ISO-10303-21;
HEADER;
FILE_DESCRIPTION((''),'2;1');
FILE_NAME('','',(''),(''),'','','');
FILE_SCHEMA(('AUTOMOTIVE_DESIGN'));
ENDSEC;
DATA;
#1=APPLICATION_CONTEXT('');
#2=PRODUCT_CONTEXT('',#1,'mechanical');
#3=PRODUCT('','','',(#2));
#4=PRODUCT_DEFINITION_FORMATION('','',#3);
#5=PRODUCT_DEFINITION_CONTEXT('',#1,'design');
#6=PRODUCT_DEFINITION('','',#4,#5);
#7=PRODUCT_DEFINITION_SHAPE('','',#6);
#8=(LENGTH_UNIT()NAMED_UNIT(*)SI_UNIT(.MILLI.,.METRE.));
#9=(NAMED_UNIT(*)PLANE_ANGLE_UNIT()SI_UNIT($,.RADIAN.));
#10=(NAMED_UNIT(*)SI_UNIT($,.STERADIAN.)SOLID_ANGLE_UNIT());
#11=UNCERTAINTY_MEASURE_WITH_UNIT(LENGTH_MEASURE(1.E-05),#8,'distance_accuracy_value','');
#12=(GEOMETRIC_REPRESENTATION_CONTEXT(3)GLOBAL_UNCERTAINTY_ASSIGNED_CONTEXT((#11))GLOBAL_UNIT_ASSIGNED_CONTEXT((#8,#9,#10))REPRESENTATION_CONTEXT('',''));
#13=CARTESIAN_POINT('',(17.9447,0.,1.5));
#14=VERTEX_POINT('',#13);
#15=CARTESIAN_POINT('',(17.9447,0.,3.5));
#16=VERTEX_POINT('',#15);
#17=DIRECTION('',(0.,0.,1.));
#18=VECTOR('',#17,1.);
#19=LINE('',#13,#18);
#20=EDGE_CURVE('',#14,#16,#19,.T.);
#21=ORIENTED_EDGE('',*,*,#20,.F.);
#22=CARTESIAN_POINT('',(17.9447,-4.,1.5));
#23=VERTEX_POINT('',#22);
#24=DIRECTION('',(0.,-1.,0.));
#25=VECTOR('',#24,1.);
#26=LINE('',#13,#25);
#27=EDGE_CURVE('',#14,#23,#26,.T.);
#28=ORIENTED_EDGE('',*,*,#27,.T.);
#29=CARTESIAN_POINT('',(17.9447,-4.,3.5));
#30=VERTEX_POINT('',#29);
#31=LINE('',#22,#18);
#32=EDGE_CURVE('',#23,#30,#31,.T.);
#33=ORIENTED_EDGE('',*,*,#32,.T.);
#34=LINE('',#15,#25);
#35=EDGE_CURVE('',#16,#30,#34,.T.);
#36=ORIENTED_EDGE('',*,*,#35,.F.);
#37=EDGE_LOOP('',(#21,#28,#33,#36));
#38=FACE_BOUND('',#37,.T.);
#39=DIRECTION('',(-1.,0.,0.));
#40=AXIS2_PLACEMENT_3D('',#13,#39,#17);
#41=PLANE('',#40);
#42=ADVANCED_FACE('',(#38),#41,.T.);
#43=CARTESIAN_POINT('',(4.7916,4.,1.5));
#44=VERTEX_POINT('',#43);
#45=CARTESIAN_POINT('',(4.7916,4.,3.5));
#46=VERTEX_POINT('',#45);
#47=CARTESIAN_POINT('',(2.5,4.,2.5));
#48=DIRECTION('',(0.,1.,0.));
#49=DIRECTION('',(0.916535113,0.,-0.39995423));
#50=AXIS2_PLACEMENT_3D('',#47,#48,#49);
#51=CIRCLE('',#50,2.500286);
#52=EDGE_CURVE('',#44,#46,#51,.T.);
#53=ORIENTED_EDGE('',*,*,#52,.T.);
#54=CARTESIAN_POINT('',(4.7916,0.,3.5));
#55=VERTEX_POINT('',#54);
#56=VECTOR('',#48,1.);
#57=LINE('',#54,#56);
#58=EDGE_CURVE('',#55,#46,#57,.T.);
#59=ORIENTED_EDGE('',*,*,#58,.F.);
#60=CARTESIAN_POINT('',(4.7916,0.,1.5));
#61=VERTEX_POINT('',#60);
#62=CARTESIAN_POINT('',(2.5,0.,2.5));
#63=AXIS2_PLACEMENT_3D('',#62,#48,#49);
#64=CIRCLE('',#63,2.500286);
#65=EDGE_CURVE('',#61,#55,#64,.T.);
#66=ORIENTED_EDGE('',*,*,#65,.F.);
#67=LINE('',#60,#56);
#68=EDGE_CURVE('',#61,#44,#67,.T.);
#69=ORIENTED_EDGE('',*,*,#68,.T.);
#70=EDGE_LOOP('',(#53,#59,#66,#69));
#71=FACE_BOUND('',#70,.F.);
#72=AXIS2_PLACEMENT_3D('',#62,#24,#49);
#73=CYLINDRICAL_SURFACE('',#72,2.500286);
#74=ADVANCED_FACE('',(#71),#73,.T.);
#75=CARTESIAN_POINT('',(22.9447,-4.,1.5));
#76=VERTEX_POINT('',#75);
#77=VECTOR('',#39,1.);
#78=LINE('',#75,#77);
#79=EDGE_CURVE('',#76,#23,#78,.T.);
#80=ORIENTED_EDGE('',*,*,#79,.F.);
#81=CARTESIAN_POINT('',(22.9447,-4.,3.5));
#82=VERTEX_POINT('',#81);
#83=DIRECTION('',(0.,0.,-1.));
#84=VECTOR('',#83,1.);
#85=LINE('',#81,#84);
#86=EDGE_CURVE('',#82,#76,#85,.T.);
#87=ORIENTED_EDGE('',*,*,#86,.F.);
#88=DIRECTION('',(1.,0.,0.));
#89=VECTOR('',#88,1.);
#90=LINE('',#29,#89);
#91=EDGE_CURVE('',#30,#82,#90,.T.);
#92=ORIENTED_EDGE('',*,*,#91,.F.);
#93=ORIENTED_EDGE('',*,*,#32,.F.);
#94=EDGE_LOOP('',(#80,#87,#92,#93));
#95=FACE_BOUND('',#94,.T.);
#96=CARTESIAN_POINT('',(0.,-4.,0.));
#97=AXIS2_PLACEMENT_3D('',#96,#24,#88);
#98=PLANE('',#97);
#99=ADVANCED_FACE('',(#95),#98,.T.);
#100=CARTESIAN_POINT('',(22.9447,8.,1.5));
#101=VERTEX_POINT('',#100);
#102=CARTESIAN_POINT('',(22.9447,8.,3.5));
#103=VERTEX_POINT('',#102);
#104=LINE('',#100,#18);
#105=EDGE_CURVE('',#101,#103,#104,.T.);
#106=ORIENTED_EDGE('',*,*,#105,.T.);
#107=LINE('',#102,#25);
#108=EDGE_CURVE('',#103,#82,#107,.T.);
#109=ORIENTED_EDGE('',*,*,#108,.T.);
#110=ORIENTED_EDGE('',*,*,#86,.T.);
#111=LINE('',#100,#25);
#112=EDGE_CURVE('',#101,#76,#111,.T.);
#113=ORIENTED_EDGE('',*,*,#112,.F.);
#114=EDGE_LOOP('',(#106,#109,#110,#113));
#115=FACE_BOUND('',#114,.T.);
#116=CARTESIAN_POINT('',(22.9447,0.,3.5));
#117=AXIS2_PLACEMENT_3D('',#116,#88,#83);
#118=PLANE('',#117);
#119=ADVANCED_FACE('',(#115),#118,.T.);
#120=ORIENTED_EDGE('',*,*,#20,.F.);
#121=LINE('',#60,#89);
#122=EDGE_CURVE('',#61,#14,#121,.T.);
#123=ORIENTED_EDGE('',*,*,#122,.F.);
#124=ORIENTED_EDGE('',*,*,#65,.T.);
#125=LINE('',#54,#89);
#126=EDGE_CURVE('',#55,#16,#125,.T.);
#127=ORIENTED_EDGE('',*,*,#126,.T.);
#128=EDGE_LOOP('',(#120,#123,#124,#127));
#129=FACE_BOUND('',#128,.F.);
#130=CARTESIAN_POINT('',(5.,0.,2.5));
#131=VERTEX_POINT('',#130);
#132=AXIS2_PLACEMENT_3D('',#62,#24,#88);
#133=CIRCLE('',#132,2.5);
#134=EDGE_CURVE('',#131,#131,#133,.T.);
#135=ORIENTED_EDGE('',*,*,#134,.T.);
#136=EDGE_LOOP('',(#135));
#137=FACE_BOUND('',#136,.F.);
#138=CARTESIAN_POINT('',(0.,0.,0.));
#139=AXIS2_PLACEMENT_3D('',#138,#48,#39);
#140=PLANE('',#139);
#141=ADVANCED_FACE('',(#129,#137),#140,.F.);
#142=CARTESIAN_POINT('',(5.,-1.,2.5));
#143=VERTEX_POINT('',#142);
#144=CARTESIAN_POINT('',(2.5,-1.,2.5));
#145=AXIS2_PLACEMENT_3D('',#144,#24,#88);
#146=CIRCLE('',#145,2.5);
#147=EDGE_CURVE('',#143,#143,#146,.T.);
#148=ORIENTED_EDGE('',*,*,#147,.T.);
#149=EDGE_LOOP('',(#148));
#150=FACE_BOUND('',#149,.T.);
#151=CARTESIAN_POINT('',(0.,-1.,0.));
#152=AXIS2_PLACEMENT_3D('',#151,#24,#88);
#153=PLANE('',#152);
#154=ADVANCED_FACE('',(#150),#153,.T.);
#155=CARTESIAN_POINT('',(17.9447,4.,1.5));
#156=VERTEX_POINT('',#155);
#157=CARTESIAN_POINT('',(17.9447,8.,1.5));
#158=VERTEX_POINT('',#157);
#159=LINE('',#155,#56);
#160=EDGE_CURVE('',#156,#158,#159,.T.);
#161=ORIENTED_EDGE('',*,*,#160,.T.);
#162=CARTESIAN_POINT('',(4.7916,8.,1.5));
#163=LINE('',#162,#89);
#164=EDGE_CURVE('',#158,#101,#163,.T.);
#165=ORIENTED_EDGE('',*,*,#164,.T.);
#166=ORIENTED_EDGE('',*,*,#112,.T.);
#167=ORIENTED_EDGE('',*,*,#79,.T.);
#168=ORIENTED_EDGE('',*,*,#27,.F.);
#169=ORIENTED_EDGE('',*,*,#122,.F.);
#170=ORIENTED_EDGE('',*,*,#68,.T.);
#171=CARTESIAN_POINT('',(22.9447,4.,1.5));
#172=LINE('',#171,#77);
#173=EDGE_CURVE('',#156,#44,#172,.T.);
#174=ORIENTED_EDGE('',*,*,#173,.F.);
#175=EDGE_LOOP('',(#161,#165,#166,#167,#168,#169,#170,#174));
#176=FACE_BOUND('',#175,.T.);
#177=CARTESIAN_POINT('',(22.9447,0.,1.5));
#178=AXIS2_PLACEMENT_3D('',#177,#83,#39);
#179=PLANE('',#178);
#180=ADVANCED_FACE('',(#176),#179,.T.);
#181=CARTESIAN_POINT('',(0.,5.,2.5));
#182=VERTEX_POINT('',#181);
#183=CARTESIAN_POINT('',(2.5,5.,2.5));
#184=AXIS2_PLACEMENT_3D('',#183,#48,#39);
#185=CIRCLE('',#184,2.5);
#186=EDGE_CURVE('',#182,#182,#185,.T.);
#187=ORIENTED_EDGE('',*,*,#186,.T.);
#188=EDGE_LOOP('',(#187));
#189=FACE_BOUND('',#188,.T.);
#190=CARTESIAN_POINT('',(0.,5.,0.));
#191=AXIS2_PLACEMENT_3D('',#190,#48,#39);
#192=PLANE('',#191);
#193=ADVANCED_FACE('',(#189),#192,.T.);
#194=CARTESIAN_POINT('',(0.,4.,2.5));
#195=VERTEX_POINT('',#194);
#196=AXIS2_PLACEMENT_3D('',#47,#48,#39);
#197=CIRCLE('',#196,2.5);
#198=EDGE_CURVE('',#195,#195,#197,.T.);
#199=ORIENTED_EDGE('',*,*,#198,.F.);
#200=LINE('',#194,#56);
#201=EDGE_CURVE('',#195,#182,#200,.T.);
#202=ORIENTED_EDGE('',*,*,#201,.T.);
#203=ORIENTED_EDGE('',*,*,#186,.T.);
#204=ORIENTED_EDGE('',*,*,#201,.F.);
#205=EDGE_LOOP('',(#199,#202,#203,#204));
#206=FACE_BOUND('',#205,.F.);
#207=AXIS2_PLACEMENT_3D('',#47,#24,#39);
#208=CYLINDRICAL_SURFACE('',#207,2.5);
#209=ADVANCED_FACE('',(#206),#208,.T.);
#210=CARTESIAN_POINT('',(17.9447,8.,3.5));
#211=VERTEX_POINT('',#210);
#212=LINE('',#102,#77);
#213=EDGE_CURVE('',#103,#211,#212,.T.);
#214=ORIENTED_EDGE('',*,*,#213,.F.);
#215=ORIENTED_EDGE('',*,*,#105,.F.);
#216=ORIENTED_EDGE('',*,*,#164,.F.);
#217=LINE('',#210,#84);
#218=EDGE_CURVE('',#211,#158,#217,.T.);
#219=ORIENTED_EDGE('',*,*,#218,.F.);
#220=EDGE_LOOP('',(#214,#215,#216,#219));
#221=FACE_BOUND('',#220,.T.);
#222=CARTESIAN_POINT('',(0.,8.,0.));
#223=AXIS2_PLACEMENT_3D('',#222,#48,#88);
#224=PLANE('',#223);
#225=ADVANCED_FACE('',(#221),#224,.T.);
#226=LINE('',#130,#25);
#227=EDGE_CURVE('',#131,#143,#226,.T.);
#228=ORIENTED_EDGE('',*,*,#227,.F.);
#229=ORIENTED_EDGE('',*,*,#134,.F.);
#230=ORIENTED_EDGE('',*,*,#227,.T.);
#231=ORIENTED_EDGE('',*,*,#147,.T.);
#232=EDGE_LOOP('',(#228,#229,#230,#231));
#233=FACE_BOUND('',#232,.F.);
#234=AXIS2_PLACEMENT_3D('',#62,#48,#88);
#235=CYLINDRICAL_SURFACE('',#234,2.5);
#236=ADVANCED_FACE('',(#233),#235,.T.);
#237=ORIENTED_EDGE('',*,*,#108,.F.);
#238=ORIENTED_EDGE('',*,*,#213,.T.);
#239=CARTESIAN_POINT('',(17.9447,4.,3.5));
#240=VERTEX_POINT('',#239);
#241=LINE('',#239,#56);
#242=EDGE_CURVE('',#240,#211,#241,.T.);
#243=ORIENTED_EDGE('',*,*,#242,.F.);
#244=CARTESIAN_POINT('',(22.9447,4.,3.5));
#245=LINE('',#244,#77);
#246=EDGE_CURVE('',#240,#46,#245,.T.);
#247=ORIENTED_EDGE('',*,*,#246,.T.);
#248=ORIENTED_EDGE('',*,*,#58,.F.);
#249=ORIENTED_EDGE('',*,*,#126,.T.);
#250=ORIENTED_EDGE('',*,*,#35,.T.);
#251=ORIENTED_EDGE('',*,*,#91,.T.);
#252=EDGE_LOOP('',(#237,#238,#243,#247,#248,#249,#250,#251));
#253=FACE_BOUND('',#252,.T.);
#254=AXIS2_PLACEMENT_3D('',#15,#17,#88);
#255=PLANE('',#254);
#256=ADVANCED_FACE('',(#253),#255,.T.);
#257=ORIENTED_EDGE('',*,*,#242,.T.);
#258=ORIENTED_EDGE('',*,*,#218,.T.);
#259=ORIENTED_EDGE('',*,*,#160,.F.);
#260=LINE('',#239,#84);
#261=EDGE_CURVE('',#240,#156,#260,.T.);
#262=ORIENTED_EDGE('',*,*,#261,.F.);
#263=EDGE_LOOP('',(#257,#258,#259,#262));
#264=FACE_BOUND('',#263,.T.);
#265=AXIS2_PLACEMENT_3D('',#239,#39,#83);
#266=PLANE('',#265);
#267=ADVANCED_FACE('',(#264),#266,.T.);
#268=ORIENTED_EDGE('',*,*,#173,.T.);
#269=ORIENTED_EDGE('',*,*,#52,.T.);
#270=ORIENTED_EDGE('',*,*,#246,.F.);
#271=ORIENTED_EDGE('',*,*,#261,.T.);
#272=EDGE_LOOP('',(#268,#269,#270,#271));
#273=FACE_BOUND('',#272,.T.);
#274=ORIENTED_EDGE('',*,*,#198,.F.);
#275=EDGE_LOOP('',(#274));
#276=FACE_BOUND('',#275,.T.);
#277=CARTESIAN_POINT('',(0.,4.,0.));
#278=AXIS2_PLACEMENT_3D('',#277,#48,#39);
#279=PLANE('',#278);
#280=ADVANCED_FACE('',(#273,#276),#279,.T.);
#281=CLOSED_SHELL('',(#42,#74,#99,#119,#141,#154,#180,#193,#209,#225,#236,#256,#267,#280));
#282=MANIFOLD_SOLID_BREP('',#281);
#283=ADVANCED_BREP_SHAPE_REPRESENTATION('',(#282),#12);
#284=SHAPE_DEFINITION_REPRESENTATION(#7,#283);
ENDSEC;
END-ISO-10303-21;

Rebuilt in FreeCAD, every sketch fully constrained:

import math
import FreeCAD as App
import Part
import Sketcher

V = App.Vector
Q = App.Units.Quantity

doc = App.newDocument("Part")
body = doc.addObject("PartDesign::Body", "Body")

# Sketch on XZ plane
sketch1 = body.newObject("Sketcher::SketchObject", "Sketch")
sketch1.AttachmentSupport = (doc.getObject("XZ_Plane"), [""])
sketch1.MapMode = "FlatFace"
sketch1.addGeometry(Part.LineSegment(V(8, 5, 0), V(22.9, 5, 0)), False)
sketch1.addGeometry(Part.LineSegment(V(22.9, 5, 0), V(22.9, 0, 0)), False)
sketch1.addGeometry(Part.LineSegment(V(22.9, 0, 0), V(8, 0, 0)), False)
sketch1.addGeometry(Part.LineSegment(V(8, 0, 0), V(8, 1.5, 0)), False)
sketch1.addGeometry(Part.LineSegment(V(8, 1.5, 0), V(4.8, 1.5, 0)), False)
sketch1.addGeometry(Part.ArcOfCircle(Part.Circle(V(2.5, 2.5, 0), V(0, 0, 1), 2.5), math.radians(24), math.radians(336)), False)
sketch1.addGeometry(Part.LineSegment(V(4.8, 3.5, 0), V(8, 3.5, 0)), False)
sketch1.addGeometry(Part.LineSegment(V(8, 3.5, 0), V(8, 5, 0)), False)
sketch1.addConstraint(Sketcher.Constraint("Coincident", 0, 2, 1, 1))
sketch1.addConstraint(Sketcher.Constraint("Coincident", 1, 2, 2, 1))
sketch1.addConstraint(Sketcher.Constraint("Coincident", 2, 2, 3, 1))
sketch1.addConstraint(Sketcher.Constraint("Coincident", 3, 2, 4, 1))
sketch1.addConstraint(Sketcher.Constraint("Coincident", 4, 2, 5, 2))
sketch1.addConstraint(Sketcher.Constraint("Coincident", 5, 1, 6, 1))
sketch1.addConstraint(Sketcher.Constraint("Coincident", 6, 2, 7, 1))
sketch1.addConstraint(Sketcher.Constraint("Coincident", 7, 2, 0, 1))
sketch1.addConstraint(Sketcher.Constraint("Horizontal", 0))
sketch1.addConstraint(Sketcher.Constraint("Vertical", 1))
sketch1.addConstraint(Sketcher.Constraint("Horizontal", 2))
sketch1.addConstraint(Sketcher.Constraint("Vertical", 3))
sketch1.addConstraint(Sketcher.Constraint("Horizontal", 4))
sketch1.addConstraint(Sketcher.Constraint("Horizontal", 6))
sketch1.addConstraint(Sketcher.Constraint("Vertical", 7))
sketch1.addConstraint(Sketcher.Constraint("PointOnObject", 1, 2, -1))
sketch1.addConstraint(Sketcher.Constraint("Vertical", 4, 2, 5, 1))
sketch1.addConstraint(Sketcher.Constraint("Vertical", 3, 2, 6, 2))
sketch1.addConstraint(Sketcher.Constraint("Equal", 3, 7))
sketch1.addConstraint(Sketcher.Constraint("DistanceY", 1, 2, 1, 1, Q("5 mm")))
sketch1.addConstraint(Sketcher.Constraint("DistanceY", 3, 1, 3, 2, Q("1.5 mm")))
sketch1.addConstraint(Sketcher.Constraint("Radius", 5, Q("2.5003 mm")))
sketch1.addConstraint(Sketcher.Constraint("DistanceX", -1, 1, 2, 2, Q("8 mm")))
sketch1.addConstraint(Sketcher.Constraint("DistanceX", -1, 1, 5, 3, Q("2.5 mm")))
sketch1.addConstraint(Sketcher.Constraint("DistanceX", 0, 1, 0, 2, Q("14.9447 mm")))
pad1 = body.newObject("PartDesign::Pad", "Pad")
pad1.Profile = sketch1
pad1.Length = 4
pad1.Reversed = True

# Sketch on XY plane
sketch2 = body.newObject("Sketcher::SketchObject", "Sketch001")
sketch2.AttachmentSupport = (doc.getObject("XY_Plane"), [""])
sketch2.MapMode = "FlatFace"
sketch2.addGeometry(Part.LineSegment(V(8, -1, 0), V(8, 4, 0)), False)
sketch2.addGeometry(Part.LineSegment(V(8, 4, 0), V(23, 4, 0)), False)
sketch2.addGeometry(Part.LineSegment(V(23, 4, 0), V(23, -1, 0)), False)
sketch2.addGeometry(Part.LineSegment(V(23, -1, 0), V(8, -1, 0)), False)
sketch2.addConstraint(Sketcher.Constraint("Coincident", 0, 2, 1, 1))
sketch2.addConstraint(Sketcher.Constraint("Coincident", 1, 2, 2, 1))
sketch2.addConstraint(Sketcher.Constraint("Coincident", 2, 2, 3, 1))
sketch2.addConstraint(Sketcher.Constraint("Coincident", 3, 2, 0, 1))
sketch2.addConstraint(Sketcher.Constraint("Vertical", 0))
sketch2.addConstraint(Sketcher.Constraint("Horizontal", 1))
sketch2.addConstraint(Sketcher.Constraint("Vertical", 2))
sketch2.addConstraint(Sketcher.Constraint("Horizontal", 3))
sketch2.addConstraint(Sketcher.Constraint("DistanceY", 0, 1, 0, 2, Q("5 mm")))
sketch2.addConstraint(Sketcher.Constraint("DistanceX", -1, 1, 0, 2, Q("8 mm")))
sketch2.addConstraint(Sketcher.Constraint("DistanceY", -1, 1, 0, 2, Q("4 mm")))
sketch2.addConstraint(Sketcher.Constraint("DistanceX", 1, 1, 1, 2, Q("14.9617 mm")))
pocket1 = body.newObject("PartDesign::Pocket", "Pocket")
pocket1.Profile = sketch2
pocket1.Length = 1.5
pocket1.Reversed = True

# Sketch on XZ plane
sketch3 = body.newObject("Sketcher::SketchObject", "Sketch002")
sketch3.AttachmentSupport = (doc.getObject("XZ_Plane"), [""])
sketch3.MapMode = "FlatFace"
sketch3.AttachmentOffset = App.Placement(V(0, 0, -4), App.Rotation())
sketch3.addGeometry(Part.Circle(V(2.5, 2.5, 0), V(0, 0, 1), 2.5), False)
sketch3.addConstraint(Sketcher.Constraint("Diameter", 0, Q("5 mm")))
sketch3.addConstraint(Sketcher.Constraint("DistanceX", -1, 1, 0, 3, Q("2.5 mm")))
sketch3.addConstraint(Sketcher.Constraint("DistanceY", -1, 1, 0, 3, Q("2.5 mm")))
pad2 = body.newObject("PartDesign::Pad", "Pad001")
pad2.Profile = sketch3
pad2.Length = 1
pad2.Reversed = True

# Sketch on XZ plane
sketch4 = body.newObject("Sketcher::SketchObject", "Sketch003")
sketch4.AttachmentSupport = (doc.getObject("XZ_Plane"), [""])
sketch4.MapMode = "FlatFace"
sketch4.addGeometry(Part.Circle(V(2.5, 2.5, 0), V(0, 0, 1), 2.5), False)
sketch4.addConstraint(Sketcher.Constraint("Diameter", 0, Q("5 mm")))
sketch4.addConstraint(Sketcher.Constraint("DistanceX", -1, 1, 0, 3, Q("2.5 mm")))
sketch4.addConstraint(Sketcher.Constraint("DistanceY", -1, 1, 0, 3, Q("2.5 mm")))
pad3 = body.newObject("PartDesign::Pad", "Pad002")
pad3.Profile = sketch4
pad3.Length = 1

# Sketch on XY plane
sketch5 = body.newObject("Sketcher::SketchObject", "Sketch004")
sketch5.AttachmentSupport = (doc.getObject("XY_Plane"), [""])
sketch5.MapMode = "FlatFace"
sketch5.AttachmentOffset = App.Placement(V(0, 0, 5), App.Rotation())
sketch5.addGeometry(Part.LineSegment(V(7.9, 4, 0), V(7.9, 0, 0)), False)
sketch5.addGeometry(Part.LineSegment(V(7.9, 0, 0), V(22.9, 0, 0)), False)
sketch5.addGeometry(Part.LineSegment(V(22.9, 0, 0), V(22.9, 4, 0)), False)
sketch5.addGeometry(Part.LineSegment(V(22.9, 4, 0), V(7.9, 4, 0)), False)
sketch5.addConstraint(Sketcher.Constraint("Coincident", 0, 2, 1, 1))
sketch5.addConstraint(Sketcher.Constraint("Coincident", 1, 2, 2, 1))
sketch5.addConstraint(Sketcher.Constraint("Coincident", 2, 2, 3, 1))
sketch5.addConstraint(Sketcher.Constraint("Coincident", 3, 2, 0, 1))
sketch5.addConstraint(Sketcher.Constraint("Vertical", 0))
sketch5.addConstraint(Sketcher.Constraint("Horizontal", 1))
sketch5.addConstraint(Sketcher.Constraint("Vertical", 2))
sketch5.addConstraint(Sketcher.Constraint("Horizontal", 3))
sketch5.addConstraint(Sketcher.Constraint("PointOnObject", 0, 2, -1))
sketch5.addConstraint(Sketcher.Constraint("DistanceY", 0, 2, 0, 1, Q("4 mm")))
sketch5.addConstraint(Sketcher.Constraint("DistanceX", 1, 1, 1, 2, Q("15.0725 mm")))
sketch5.addConstraint(Sketcher.Constraint("DistanceX", -1, 1, 0, 2, Q("7.8722 mm")))
pocket2 = body.newObject("PartDesign::Pocket", "Pocket001")
pocket2.Profile = sketch5
pocket2.Length = 1.5

# Sketch on XZ plane
sketch6 = body.newObject("Sketcher::SketchObject", "Sketch005")
sketch6.AttachmentSupport = (doc.getObject("XZ_Plane"), [""])
sketch6.MapMode = "FlatFace"
sketch6.AttachmentOffset = App.Placement(V(0, 0, -4), App.Rotation())
sketch6.addGeometry(Part.LineSegment(V(22.9, 3.5, 0), V(22.9, 1.5, 0)), False)
sketch6.addGeometry(Part.LineSegment(V(22.9, 1.5, 0), V(17.9, 1.5, 0)), False)
sketch6.addGeometry(Part.LineSegment(V(17.9, 1.5, 0), V(17.9, 3.5, 0)), False)
sketch6.addGeometry(Part.LineSegment(V(17.9, 3.5, 0), V(22.9, 3.5, 0)), False)
sketch6.addConstraint(Sketcher.Constraint("Coincident", 0, 2, 1, 1))
sketch6.addConstraint(Sketcher.Constraint("Coincident", 1, 2, 2, 1))
sketch6.addConstraint(Sketcher.Constraint("Coincident", 2, 2, 3, 1))
sketch6.addConstraint(Sketcher.Constraint("Coincident", 3, 2, 0, 1))
sketch6.addConstraint(Sketcher.Constraint("Vertical", 0))
sketch6.addConstraint(Sketcher.Constraint("Horizontal", 1))
sketch6.addConstraint(Sketcher.Constraint("Vertical", 2))
sketch6.addConstraint(Sketcher.Constraint("Horizontal", 3))
sketch6.addConstraint(Sketcher.Constraint("DistanceX", 1, 2, 1, 1, Q("5 mm")))
sketch6.addConstraint(Sketcher.Constraint("DistanceY", 0, 2, 0, 1, Q("2 mm")))
sketch6.addConstraint(Sketcher.Constraint("DistanceY", -1, 1, 0, 2, Q("1.5 mm")))
sketch6.addConstraint(Sketcher.Constraint("DistanceX", -1, 1, 0, 2, Q("22.9447 mm")))
pad4 = body.newObject("PartDesign::Pad", "Pad003")
pad4.Profile = sketch6
pad4.Length = 4
pad4.Reversed = True

# Sketch on XZ plane
sketch7 = body.newObject("Sketcher::SketchObject", "Sketch006")
sketch7.AttachmentSupport = (doc.getObject("XZ_Plane"), [""])
sketch7.MapMode = "FlatFace"
sketch7.addGeometry(Part.LineSegment(V(17.9, 1.5, 0), V(22.9, 1.5, 0)), False)
sketch7.addGeometry(Part.LineSegment(V(22.9, 1.5, 0), V(22.9, 3.5, 0)), False)
sketch7.addGeometry(Part.LineSegment(V(22.9, 3.5, 0), V(17.9, 3.5, 0)), False)
sketch7.addGeometry(Part.LineSegment(V(17.9, 3.5, 0), V(17.9, 1.5, 0)), False)
sketch7.addConstraint(Sketcher.Constraint("Coincident", 0, 2, 1, 1))
sketch7.addConstraint(Sketcher.Constraint("Coincident", 1, 2, 2, 1))
sketch7.addConstraint(Sketcher.Constraint("Coincident", 2, 2, 3, 1))
sketch7.addConstraint(Sketcher.Constraint("Coincident", 3, 2, 0, 1))
sketch7.addConstraint(Sketcher.Constraint("Horizontal", 0))
sketch7.addConstraint(Sketcher.Constraint("Vertical", 1))
sketch7.addConstraint(Sketcher.Constraint("Horizontal", 2))
sketch7.addConstraint(Sketcher.Constraint("Vertical", 3))
sketch7.addConstraint(Sketcher.Constraint("DistanceX", 0, 1, 0, 2, Q("5 mm")))
sketch7.addConstraint(Sketcher.Constraint("DistanceY", 1, 1, 1, 2, Q("2 mm")))
sketch7.addConstraint(Sketcher.Constraint("DistanceY", -1, 1, 0, 2, Q("1.5 mm")))
sketch7.addConstraint(Sketcher.Constraint("DistanceX", -1, 1, 0, 2, Q("22.9447 mm")))
pad5 = body.newObject("PartDesign::Pad", "Pad004")
pad5.Profile = sketch7
pad5.Length = 4

doc.recompute()
